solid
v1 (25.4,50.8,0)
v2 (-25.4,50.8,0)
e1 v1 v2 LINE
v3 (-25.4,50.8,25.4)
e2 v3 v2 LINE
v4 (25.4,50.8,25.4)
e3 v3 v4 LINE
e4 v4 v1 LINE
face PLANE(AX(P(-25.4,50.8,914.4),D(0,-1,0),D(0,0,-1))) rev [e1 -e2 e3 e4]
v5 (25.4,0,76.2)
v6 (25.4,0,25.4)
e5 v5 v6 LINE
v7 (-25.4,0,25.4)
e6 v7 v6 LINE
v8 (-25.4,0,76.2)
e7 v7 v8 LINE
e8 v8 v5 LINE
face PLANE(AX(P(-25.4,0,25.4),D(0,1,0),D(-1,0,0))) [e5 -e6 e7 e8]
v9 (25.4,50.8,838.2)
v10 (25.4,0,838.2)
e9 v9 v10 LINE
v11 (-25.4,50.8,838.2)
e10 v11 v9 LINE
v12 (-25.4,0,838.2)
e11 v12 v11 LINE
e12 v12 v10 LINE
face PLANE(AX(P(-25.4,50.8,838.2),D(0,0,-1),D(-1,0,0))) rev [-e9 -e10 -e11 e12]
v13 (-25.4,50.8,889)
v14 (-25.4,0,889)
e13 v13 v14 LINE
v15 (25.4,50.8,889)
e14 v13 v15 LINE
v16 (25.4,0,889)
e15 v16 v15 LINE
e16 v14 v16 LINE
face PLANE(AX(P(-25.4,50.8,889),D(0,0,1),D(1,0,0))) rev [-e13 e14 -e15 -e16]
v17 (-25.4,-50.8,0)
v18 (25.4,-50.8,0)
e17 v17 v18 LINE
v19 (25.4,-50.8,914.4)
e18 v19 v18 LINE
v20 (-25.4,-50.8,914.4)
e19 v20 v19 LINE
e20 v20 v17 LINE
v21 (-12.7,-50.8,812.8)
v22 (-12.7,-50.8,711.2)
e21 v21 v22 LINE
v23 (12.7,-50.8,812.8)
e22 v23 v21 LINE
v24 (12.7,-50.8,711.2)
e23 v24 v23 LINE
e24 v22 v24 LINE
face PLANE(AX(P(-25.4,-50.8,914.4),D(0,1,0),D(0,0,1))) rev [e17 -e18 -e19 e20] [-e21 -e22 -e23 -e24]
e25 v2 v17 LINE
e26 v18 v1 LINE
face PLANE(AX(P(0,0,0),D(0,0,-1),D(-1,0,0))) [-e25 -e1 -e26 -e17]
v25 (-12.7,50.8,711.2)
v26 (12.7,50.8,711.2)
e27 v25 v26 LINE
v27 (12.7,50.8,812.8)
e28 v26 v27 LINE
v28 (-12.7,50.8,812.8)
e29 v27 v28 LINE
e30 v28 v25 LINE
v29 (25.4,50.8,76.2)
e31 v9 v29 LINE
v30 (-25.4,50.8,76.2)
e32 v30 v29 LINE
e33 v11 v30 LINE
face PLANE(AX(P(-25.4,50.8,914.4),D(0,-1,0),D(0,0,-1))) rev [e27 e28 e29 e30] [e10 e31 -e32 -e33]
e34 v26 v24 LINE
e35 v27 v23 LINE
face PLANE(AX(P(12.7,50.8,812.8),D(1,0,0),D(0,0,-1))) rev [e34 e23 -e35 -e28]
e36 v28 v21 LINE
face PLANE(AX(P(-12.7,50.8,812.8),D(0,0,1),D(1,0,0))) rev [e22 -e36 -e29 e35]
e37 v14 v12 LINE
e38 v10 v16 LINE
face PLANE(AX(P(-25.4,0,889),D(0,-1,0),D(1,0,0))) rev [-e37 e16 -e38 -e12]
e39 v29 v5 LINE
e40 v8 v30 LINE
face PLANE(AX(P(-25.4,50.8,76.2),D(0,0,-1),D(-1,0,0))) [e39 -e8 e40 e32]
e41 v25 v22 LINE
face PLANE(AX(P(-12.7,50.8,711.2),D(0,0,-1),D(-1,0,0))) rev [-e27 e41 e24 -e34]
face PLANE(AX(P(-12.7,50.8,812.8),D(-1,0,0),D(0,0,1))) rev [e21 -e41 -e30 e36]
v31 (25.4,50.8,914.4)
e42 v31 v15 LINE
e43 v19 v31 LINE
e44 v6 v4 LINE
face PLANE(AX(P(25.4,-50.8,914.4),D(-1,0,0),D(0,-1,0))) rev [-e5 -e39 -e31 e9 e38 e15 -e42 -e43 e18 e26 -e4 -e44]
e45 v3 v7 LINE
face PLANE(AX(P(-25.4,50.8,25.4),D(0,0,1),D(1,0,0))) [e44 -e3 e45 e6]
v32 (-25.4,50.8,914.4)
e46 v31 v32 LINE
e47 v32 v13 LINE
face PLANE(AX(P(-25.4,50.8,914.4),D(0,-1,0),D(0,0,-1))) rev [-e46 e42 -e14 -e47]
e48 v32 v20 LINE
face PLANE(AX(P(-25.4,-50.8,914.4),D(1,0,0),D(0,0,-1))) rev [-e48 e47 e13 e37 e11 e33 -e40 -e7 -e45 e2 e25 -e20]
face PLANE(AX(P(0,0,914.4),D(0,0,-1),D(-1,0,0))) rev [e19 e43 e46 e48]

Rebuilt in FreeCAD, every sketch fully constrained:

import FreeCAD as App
import Part
import Sketcher

V = App.Vector
Q = App.Units.Quantity

doc = App.newDocument("Part")
body = doc.addObject("PartDesign::Body", "Body")

# Sketch on XY plane
sketch1 = body.newObject("Sketcher::SketchObject", "Sketch")
sketch1.AttachmentSupport = (doc.getObject("XY_Plane"), [""])
sketch1.MapMode = "FlatFace"
sketch1.addGeometry([
    Part.LineSegment(V(-25, 51, 0), V(-25, -51, 0)),
    Part.LineSegment(V(-25, -51, 0), V(25, -51, 0)),
    Part.LineSegment(V(25, -51, 0), V(25, 51, 0)),
    Part.LineSegment(V(25, 51, 0), V(-25, 51, 0)),
], False)
sketch1.addConstraint([
    Sketcher.Constraint("Coincident", 0, 2, 1, 1),
    Sketcher.Constraint("Coincident", 1, 2, 2, 1),
    Sketcher.Constraint("Coincident", 2, 2, 3, 1),
    Sketcher.Constraint("Coincident", 3, 2, 0, 1),
    Sketcher.Constraint("Vertical", 0),
    Sketcher.Constraint("Horizontal", 1),
    Sketcher.Constraint("Vertical", 2),
    Sketcher.Constraint("Horizontal", 3),
    Sketcher.Constraint("Symmetric", 0, 2, 2, 2, -1, 1),
    Sketcher.Constraint("DistanceX", 1, 1, 1, 2, Q("2 in")),
    Sketcher.Constraint("DistanceY", 0, 2, 0, 1, Q("4 in")),
])
pad1 = body.newObject("PartDesign::Pad", "Pad")
pad1.Profile = sketch1
pad1.Length = Q("36 in")

# Sketch on YZ plane
sketch2 = body.newObject("Sketcher::SketchObject", "Sketch001")
sketch2.AttachmentSupport = (doc.getObject("YZ_Plane"), [""])
sketch2.MapMode = "FlatFace"
sketch2.AttachmentOffset = App.Placement(V(0, 0, 1 * 25.4), App.Rotation())
sketch2.addGeometry([
    Part.LineSegment(V(51, -279, 0), V(0, -279, 0)),  # 0
    Part.LineSegment(V(0, -279, 0), V(0, -330, 0)),  # 1
    Part.LineSegment(V(0, -330, 0), V(51, -330, 0)),  # 2
    Part.LineSegment(V(51, -330, 0), V(51, -279, 0)),  # 3
    Part.LineSegment(V(51, 889, 0), V(0, 889, 0)),  # 4
    Part.LineSegment(V(0, 889, 0), V(0, 838, 0)),  # 5
    Part.LineSegment(V(0, 838, 0), V(51, 838, 0)),  # 6
    Part.LineSegment(V(51, 838, 0), V(51, 889, 0)),  # 7
    Part.LineSegment(V(51, -1448, 0), V(0, -1448, 0)),  # 8
    Part.LineSegment(V(0, -1448, 0), V(0, -1499, 0)),  # 9
    Part.LineSegment(V(0, -1499, 0), V(51, -1499, 0)),  # 10
    Part.LineSegment(V(51, -1499, 0), V(51, -1448, 0)),  # 11
], False)
sketch2.addConstraint([
    Sketcher.Constraint("Coincident", 0, 2, 1, 1),
    Sketcher.Constraint("Coincident", 1, 2, 2, 1),
    Sketcher.Constraint("Coincident", 2, 2, 3, 1),
    Sketcher.Constraint("Coincident", 3, 2, 0, 1),
    Sketcher.Constraint("Coincident", 4, 2, 5, 1),
    Sketcher.Constraint("Coincident", 5, 2, 6, 1),
    Sketcher.Constraint("Coincident", 6, 2, 7, 1),
    Sketcher.Constraint("Coincident", 7, 2, 4, 1),
    Sketcher.Constraint("Coincident", 8, 2, 9, 1),
    Sketcher.Constraint("Coincident", 9, 2, 10, 1),
    Sketcher.Constraint("Coincident", 10, 2, 11, 1),
    Sketcher.Constraint("Coincident", 11, 2, 8, 1),
    Sketcher.Constraint("Horizontal", 0),
    Sketcher.Constraint("Vertical", 1),
    Sketcher.Constraint("Horizontal", 2),
    Sketcher.Constraint("Vertical", 3),
    Sketcher.Constraint("Horizontal", 4),
    Sketcher.Constraint("Vertical", 5),
    Sketcher.Constraint("Horizontal", 6),
    Sketcher.Constraint("Vertical", 7),
    Sketcher.Constraint("Horizontal", 8),
    Sketcher.Constraint("Vertical", 9),
    Sketcher.Constraint("Horizontal", 10),
    Sketcher.Constraint("Vertical", 11),
    Sketcher.Constraint("PointOnObject", 0, 2, -2),
    Sketcher.Constraint("PointOnObject", 4, 2, -2),
    Sketcher.Constraint("PointOnObject", 8, 2, -2),
    Sketcher.Constraint("Vertical", 3, 2, 6, 2),
    Sketcher.Constraint("Vertical", 7, 2, 10, 2),
    Sketcher.Constraint("Equal", 10, 1),
    Sketcher.Constraint("Equal", 3, 5),
    Sketcher.Constraint("Equal", 7, 9),
    Sketcher.Constraint("DistanceX", 0, 2, 0, 1, Q("2 in")),
    Sketcher.Constraint("DistanceY", 0, 2, -1, 1, Q("11 in")),
    Sketcher.Constraint("DistanceY", -1, 1, 4, 2, Q("35 in")),
    Sketcher.Constraint("DistanceY", 8, 2, -1, 1, Q("57 in")),
])
pocket1 = body.newObject("PartDesign::Pocket", "Pocket")
pocket1.Profile = sketch2
pocket1.Length = 1836.435761
pocket1.Midplane = True
doc.recompute()

datumplane = body.newObject("PartDesign::Plane", "DatumPlane")
datumplane.AttachmentSupport = (doc.getObject("XY_Plane"), [""])
datumplane.MapMode = "FlatFace"
datumplane.AttachmentOffset = App.Placement(V(0, 0, 18 * 25.4), App.Rotation())
mirrored = body.newObject("PartDesign::Mirrored", "Mirrored")
mirrored.Originals = [pocket1]
mirrored.MirrorPlane = (datumplane, [""])
body.Tip = mirrored

# Sketch on XZ plane
sketch3 = body.newObject("Sketcher::SketchObject", "Sketch002")
sketch3.AttachmentSupport = (doc.getObject("XZ_Plane"), [""])
sketch3.MapMode = "FlatFace"
sketch3.AttachmentOffset = App.Placement(V(0, 0, 2 * 25.4), App.Rotation())
sketch3.addGeometry([
    Part.LineSegment(V(13, 711, 0), V(13, 813, 0)),
    Part.LineSegment(V(13, 813, 0), V(-13, 813, 0)),
    Part.LineSegment(V(-13, 813, 0), V(-13, 711, 0)),
    Part.LineSegment(V(-13, 711, 0), V(13, 711, 0)),
], False)
sketch3.addConstraint([
    Sketcher.Constraint("Coincident", 0, 2, 1, 1),
    Sketcher.Constraint("Coincident", 1, 2, 2, 1),
    Sketcher.Constraint("Coincident", 2, 2, 3, 1),
    Sketcher.Constraint("Coincident", 3, 2, 0, 1),
    Sketcher.Constraint("Vertical", 0),
    Sketcher.Constraint("Horizontal", 1),
    Sketcher.Constraint("Vertical", 2),
    Sketcher.Constraint("Horizontal", 3),
    Sketcher.Constraint("DistanceX", 1, 2, 1, 1, Q("1 in")),
    Sketcher.Constraint("DistanceY", 0, 1, 0, 2, Q("4 in")),
    Sketcher.Constraint("DistanceY", -1, 1, 0, 2, Q("32 in")),
    Sketcher.Constraint("DistanceX", -1, 1, 0, 2, Q("0.5 in")),
])
pocket2 = body.newObject("PartDesign::Pocket", "Pocket001")
pocket2.Profile = sketch3
pocket2.Type = "ThroughAll"

doc.recompute()
